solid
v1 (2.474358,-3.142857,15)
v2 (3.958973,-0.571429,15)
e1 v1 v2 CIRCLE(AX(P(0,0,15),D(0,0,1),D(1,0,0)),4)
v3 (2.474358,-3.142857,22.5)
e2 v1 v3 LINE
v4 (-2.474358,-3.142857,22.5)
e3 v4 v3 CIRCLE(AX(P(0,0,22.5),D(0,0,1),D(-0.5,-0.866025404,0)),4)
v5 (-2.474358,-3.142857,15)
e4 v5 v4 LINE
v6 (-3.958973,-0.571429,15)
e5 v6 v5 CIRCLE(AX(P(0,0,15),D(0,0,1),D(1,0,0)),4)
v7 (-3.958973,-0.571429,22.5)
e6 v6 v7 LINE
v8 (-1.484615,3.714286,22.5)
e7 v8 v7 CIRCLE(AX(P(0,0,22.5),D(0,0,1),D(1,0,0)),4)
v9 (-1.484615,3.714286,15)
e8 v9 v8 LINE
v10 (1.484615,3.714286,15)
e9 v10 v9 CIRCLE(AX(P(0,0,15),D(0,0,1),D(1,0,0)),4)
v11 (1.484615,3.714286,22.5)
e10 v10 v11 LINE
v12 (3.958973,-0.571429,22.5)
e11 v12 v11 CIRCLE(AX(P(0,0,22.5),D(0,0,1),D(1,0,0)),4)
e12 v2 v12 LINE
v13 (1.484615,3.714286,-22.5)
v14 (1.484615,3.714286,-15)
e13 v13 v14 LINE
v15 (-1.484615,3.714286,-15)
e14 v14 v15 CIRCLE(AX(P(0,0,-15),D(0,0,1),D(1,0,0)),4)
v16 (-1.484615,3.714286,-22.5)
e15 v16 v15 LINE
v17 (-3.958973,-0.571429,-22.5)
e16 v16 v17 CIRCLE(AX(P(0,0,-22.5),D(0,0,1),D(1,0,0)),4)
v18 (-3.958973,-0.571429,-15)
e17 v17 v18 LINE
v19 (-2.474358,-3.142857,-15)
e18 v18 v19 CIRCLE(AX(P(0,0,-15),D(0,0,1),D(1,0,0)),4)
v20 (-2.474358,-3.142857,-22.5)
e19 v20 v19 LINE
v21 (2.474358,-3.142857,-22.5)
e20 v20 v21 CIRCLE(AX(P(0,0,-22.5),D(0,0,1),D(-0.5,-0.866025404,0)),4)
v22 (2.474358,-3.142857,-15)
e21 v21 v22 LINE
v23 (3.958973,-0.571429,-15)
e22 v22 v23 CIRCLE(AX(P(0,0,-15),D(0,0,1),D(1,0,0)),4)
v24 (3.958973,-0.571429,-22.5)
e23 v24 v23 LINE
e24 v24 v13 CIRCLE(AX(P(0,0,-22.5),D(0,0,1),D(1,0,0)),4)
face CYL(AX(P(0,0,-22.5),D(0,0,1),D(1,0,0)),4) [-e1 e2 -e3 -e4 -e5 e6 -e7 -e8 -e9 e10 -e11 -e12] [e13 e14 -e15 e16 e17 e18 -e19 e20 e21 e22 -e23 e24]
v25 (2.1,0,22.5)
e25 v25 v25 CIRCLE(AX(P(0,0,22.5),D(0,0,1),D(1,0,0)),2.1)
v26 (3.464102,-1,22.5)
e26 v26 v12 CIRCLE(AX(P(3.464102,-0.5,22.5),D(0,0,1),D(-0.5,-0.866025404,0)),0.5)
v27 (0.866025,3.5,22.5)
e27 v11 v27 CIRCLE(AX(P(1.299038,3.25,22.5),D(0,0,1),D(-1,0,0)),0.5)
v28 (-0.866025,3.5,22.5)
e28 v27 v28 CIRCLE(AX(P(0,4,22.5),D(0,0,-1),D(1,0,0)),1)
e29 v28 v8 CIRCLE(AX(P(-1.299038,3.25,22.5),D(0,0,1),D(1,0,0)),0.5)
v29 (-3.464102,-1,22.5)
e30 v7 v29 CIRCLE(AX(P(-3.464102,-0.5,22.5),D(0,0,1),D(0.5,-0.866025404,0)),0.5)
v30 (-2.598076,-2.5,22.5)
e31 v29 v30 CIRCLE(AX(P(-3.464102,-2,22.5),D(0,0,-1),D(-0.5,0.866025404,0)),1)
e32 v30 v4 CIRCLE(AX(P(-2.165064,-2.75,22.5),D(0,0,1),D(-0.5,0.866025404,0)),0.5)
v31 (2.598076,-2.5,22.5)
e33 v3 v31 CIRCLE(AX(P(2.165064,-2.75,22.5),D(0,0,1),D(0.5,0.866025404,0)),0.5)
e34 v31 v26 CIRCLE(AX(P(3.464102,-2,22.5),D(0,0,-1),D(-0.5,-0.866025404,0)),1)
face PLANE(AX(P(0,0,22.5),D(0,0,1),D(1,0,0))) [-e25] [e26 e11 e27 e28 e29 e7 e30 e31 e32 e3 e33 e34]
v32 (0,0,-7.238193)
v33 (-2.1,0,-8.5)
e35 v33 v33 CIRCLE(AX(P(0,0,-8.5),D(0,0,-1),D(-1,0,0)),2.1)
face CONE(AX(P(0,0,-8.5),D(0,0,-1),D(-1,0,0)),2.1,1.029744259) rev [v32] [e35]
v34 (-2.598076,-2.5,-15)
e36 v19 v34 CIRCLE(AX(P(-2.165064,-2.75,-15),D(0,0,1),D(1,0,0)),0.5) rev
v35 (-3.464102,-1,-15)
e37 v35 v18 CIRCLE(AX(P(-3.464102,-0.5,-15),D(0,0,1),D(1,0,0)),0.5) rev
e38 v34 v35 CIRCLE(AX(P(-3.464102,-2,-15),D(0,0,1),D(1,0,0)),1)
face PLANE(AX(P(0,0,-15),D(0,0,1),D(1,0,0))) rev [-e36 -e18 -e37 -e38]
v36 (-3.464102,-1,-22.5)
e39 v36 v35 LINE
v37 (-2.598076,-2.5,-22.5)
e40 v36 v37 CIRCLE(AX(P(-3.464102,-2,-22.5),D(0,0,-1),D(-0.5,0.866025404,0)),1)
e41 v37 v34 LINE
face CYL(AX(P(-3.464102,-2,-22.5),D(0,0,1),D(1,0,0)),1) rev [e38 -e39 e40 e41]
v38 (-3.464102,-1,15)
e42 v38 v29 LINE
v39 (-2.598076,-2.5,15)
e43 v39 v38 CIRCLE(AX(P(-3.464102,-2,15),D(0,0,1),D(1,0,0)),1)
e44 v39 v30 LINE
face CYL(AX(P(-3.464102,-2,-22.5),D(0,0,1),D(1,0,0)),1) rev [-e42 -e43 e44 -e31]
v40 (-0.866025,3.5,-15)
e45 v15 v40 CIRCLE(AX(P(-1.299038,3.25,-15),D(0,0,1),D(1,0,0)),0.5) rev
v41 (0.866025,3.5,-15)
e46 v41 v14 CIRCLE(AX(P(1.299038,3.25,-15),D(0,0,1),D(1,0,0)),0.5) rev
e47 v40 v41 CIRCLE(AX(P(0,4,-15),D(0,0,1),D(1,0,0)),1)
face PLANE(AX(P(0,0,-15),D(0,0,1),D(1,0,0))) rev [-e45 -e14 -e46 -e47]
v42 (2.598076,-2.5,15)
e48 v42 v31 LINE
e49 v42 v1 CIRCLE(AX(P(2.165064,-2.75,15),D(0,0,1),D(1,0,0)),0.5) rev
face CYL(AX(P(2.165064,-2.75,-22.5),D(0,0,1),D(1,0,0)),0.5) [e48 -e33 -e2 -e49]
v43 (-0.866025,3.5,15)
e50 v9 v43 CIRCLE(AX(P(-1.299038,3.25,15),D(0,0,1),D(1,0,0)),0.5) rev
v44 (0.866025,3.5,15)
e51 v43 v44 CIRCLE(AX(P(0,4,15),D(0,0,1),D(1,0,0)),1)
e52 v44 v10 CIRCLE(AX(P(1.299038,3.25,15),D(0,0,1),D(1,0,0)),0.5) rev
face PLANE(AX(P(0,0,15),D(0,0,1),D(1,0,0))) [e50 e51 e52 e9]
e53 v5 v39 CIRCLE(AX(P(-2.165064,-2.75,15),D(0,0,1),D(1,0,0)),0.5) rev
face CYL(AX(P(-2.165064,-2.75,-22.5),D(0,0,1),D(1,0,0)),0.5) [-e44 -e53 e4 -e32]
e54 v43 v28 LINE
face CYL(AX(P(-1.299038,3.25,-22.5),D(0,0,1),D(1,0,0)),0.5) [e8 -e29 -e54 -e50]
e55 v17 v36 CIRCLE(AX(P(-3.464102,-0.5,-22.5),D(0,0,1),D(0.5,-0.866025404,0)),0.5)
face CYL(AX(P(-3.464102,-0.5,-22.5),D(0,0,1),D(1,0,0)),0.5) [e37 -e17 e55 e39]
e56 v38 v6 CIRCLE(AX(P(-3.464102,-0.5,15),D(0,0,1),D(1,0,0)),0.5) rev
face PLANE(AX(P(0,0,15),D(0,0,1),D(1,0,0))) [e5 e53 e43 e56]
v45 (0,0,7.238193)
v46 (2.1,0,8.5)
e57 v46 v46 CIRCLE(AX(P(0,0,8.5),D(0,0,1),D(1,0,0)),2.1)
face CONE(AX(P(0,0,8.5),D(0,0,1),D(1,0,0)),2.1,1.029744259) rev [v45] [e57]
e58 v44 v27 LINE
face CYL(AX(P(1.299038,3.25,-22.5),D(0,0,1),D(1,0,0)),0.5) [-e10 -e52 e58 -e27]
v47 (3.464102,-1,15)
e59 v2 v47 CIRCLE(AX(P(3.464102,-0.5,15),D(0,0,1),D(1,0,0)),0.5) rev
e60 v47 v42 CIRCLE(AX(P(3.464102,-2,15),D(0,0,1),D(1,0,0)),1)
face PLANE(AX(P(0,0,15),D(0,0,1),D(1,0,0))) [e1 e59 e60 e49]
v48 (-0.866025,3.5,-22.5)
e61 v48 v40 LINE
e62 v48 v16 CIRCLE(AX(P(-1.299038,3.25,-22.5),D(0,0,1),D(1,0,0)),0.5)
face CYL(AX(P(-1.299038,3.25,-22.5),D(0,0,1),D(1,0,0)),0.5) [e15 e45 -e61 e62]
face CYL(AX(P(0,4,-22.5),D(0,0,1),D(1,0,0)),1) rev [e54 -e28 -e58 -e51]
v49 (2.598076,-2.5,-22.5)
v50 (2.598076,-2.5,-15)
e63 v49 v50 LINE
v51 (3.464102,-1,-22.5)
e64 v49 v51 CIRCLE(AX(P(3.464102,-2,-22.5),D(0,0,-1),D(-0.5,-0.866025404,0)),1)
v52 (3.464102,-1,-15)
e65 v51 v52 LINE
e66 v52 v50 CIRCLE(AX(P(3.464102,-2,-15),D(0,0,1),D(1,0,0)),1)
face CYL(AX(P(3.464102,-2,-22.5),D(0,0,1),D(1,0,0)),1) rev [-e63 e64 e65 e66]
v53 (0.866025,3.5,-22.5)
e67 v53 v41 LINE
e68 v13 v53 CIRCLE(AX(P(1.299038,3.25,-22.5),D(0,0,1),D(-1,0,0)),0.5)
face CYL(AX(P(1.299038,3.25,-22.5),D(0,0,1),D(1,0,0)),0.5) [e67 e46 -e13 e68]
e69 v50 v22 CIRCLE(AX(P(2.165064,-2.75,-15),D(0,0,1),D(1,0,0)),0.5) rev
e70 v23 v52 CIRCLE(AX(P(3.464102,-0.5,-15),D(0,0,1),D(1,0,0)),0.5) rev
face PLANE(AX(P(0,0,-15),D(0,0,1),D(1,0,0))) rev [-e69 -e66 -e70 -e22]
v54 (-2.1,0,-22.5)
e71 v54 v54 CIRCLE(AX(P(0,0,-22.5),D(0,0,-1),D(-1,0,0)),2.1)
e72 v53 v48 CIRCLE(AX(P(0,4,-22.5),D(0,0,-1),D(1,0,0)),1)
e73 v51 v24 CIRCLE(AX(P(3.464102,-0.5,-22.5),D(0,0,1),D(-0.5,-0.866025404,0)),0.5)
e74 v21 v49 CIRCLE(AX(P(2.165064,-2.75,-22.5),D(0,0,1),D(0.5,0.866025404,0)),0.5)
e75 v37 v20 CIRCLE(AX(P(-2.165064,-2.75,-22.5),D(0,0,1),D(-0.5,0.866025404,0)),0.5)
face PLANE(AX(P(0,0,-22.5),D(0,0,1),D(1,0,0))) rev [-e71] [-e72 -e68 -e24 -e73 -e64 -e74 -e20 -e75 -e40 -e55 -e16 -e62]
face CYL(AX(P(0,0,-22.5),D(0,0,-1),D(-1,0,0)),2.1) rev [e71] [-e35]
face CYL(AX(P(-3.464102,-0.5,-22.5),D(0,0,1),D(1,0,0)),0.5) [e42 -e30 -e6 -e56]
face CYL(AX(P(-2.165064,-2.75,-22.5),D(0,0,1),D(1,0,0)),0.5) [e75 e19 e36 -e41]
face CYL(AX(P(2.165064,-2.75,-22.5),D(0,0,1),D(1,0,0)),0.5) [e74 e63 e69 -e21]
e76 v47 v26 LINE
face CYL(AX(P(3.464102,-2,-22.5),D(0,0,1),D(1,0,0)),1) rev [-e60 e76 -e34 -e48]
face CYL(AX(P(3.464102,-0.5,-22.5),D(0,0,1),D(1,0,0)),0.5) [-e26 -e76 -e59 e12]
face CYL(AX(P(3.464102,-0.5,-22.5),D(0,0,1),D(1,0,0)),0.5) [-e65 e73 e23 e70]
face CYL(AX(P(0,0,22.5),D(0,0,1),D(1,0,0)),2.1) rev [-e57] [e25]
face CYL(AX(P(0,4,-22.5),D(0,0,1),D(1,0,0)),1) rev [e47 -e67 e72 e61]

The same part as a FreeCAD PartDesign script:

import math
import FreeCAD as App
import Part
import Sketcher

V = App.Vector
Q = App.Units.Quantity

doc = App.newDocument("Part")
body = doc.addObject("PartDesign::Body", "Body")

sketch1 = body.newObject("Sketcher::SketchObject", "Sketch")
sketch1.AttachmentSupport = (doc.getObject("XY_Plane"), [""])
sketch1.MapMode = "FlatFace"
sketch1.addGeometry(Part.LineSegment(V(-3.464102, 2, 0), V(0, 0, 0)), False)
sketch1.addGeometry(Part.LineSegment(V(0, 0, 0), V(3.464102, 2, 0)), False)
sketch1.addGeometry(Part.ArcOfCircle(Part.Circle(V(0, 0, 0), V(0, 0, 1), 4), math.radians(30), math.radians(68.213211)), False)
sketch1.addGeometry(Part.ArcOfCircle(Part.Circle(V(1.299038, 3.25, 0), V(0, 0, 1), 0.5), math.radians(68.213211), math.radians(150)), False)
sketch1.addGeometry(Part.ArcOfCircle(Part.Circle(V(0, 4, 0), V(0, 0, 1), 1), math.radians(-150), math.radians(-30)), False)
sketch1.addGeometry(Part.ArcOfCircle(Part.Circle(V(-1.299038, 3.25, 0), V(0, 0, 1), 0.5), math.radians(30), math.radians(111.786789)), False)
sketch1.addGeometry(Part.ArcOfCircle(Part.Circle(V(0, 0, 0), V(0, 0, 1), 4), math.radians(111.786789), math.radians(150)), False)
sketch1.addConstraint(Sketcher.Constraint("Coincident", 0, 2, 1, 1))
sketch1.addConstraint(Sketcher.Constraint("Coincident", 1, 2, 2, 1))
sketch1.addConstraint(Sketcher.Constraint("Tangent", 2, 2, 3, 1))
sketch1.addConstraint(Sketcher.Constraint("Tangent", 3, 2, 4, 2))
sketch1.addConstraint(Sketcher.Constraint("Tangent", 4, 1, 5, 1))
sketch1.addConstraint(Sketcher.Constraint("Tangent", 5, 2, 6, 1))
sketch1.addConstraint(Sketcher.Constraint("Coincident", 6, 2, 0, 1))
sketch1.addConstraint(Sketcher.Constraint("Coincident", 2, 3, -1, 1))
sketch1.addConstraint(Sketcher.Constraint("Coincident", 6, 3, -1, 1))
sketch1.addConstraint(Sketcher.Constraint("Coincident", 0, 2, -1, 1))
sketch1.addConstraint(Sketcher.Constraint("Equal", 3, 5))
sketch1.addConstraint(Sketcher.Constraint("Equal", 2, 6))
sketch1.addConstraint(Sketcher.Constraint("PointOnObject", 4, 3, -2))
sketch1.addConstraint(Sketcher.Constraint("Horizontal", 1, 2, 6, 2))
sketch1.addConstraint(Sketcher.Constraint("Radius", 2, 4.0))
sketch1.addConstraint(Sketcher.Constraint("Radius", 4, 1.0))
sketch1.addConstraint(Sketcher.Constraint("Radius", 3, 0.5))
sketch1.addConstraint(Sketcher.Constraint("Angle", 0, Q("-30 deg")))
sketch1.addConstraint(Sketcher.Constraint("DistanceY", -1, 1, 4, 3, 4.0))
pad1 = body.newObject("PartDesign::Pad", "Pad")
pad1.Profile = sketch1
pad1.Length = 45
pad1.Midplane = True
doc.recompute()

polarpattern = body.newObject("PartDesign::PolarPattern", "PolarPattern")
polarpattern.Originals = [pad1]
polarpattern.Axis = (doc.getObject("Z_Axis"), [""])
polarpattern.Angle = 360
polarpattern.Occurrences = 3
body.Tip = polarpattern

sketch2 = body.newObject("Sketcher::SketchObject", "Sketch001")
sketch2.AttachmentSupport = (doc.getObject("XY_Plane"), [""])
sketch2.MapMode = "FlatFace"
sketch2.AttachmentOffset = App.Placement(V(0, 0, -22.5), App.Rotation())
sketch2.addGeometry(Part.Circle(V(0, 0, 0), V(0, 0, 1), 2.1), False)
sketch2.addConstraint(Sketcher.Constraint("Coincident", 0, 3, -1, 1))
sketch2.addConstraint(Sketcher.Constraint("Diameter", 0, 4.2))
doc.recompute()
hole = body.newObject("PartDesign::Hole", "Hole")
hole.Profile = sketch2
hole.ThreadType = "None"
hole.Diameter = 4.2
hole.DepthType = "Dimension"
hole.Depth = 14
hole.DrillPoint = "Angled"
hole.DrillPointAngle = 118
hole.Reversed = True

sketch3 = body.newObject("Sketcher::SketchObject", "Sketch002")
sketch3.AttachmentSupport = (doc.getObject("XY_Plane"), [""])
sketch3.MapMode = "FlatFace"
sketch3.AttachmentOffset = App.Placement(V(0, 0, 22.5), App.Rotation())
sketch3.addGeometry(Part.Circle(V(0, 0, 0), V(0, 0, 1), 2.1), False)
sketch3.addConstraint(Sketcher.Constraint("Coincident", 0, 3, -1, 1))
sketch3.addConstraint(Sketcher.Constraint("Diameter", 0, 4.2))
doc.recompute()
hole2 = body.newObject("PartDesign::Hole", "Hole001")
hole2.Profile = sketch3
hole2.ThreadType = "None"
hole2.Diameter = 4.2
hole2.DepthType = "Dimension"
hole2.Depth = 14
hole2.DrillPoint = "Angled"
hole2.DrillPointAngle = 118

sketch4 = body.newObject("Sketcher::SketchObject", "Sketch003")
sketch4.AttachmentSupport = (doc.getObject("XY_Plane"), [""])
sketch4.MapMode = "FlatFace"
sketch4.addGeometry(Part.Circle(V(0, 0, 0), V(0, 0, 1), 4), False)
sketch4.addGeometry(Part.Circle(V(0, 0, 0), V(0, 0, 1), 2.807618), False)
sketch4.addConstraint(Sketcher.Constraint("Coincident", 0, 3, -1, 1))
sketch4.addConstraint(Sketcher.Constraint("Coincident", 1, 3, -1, 1))
sketch4.addConstraint(Sketcher.Constraint("Diameter", 0, 8.0))
sketch4.addConstraint(Sketcher.Constraint("Diameter", 1, 5.615237))
pad2 = body.newObject("PartDesign::Pad", "Pad001")
pad2.Profile = sketch4
pad2.Length = 30
pad2.Midplane = True

doc.recompute()
